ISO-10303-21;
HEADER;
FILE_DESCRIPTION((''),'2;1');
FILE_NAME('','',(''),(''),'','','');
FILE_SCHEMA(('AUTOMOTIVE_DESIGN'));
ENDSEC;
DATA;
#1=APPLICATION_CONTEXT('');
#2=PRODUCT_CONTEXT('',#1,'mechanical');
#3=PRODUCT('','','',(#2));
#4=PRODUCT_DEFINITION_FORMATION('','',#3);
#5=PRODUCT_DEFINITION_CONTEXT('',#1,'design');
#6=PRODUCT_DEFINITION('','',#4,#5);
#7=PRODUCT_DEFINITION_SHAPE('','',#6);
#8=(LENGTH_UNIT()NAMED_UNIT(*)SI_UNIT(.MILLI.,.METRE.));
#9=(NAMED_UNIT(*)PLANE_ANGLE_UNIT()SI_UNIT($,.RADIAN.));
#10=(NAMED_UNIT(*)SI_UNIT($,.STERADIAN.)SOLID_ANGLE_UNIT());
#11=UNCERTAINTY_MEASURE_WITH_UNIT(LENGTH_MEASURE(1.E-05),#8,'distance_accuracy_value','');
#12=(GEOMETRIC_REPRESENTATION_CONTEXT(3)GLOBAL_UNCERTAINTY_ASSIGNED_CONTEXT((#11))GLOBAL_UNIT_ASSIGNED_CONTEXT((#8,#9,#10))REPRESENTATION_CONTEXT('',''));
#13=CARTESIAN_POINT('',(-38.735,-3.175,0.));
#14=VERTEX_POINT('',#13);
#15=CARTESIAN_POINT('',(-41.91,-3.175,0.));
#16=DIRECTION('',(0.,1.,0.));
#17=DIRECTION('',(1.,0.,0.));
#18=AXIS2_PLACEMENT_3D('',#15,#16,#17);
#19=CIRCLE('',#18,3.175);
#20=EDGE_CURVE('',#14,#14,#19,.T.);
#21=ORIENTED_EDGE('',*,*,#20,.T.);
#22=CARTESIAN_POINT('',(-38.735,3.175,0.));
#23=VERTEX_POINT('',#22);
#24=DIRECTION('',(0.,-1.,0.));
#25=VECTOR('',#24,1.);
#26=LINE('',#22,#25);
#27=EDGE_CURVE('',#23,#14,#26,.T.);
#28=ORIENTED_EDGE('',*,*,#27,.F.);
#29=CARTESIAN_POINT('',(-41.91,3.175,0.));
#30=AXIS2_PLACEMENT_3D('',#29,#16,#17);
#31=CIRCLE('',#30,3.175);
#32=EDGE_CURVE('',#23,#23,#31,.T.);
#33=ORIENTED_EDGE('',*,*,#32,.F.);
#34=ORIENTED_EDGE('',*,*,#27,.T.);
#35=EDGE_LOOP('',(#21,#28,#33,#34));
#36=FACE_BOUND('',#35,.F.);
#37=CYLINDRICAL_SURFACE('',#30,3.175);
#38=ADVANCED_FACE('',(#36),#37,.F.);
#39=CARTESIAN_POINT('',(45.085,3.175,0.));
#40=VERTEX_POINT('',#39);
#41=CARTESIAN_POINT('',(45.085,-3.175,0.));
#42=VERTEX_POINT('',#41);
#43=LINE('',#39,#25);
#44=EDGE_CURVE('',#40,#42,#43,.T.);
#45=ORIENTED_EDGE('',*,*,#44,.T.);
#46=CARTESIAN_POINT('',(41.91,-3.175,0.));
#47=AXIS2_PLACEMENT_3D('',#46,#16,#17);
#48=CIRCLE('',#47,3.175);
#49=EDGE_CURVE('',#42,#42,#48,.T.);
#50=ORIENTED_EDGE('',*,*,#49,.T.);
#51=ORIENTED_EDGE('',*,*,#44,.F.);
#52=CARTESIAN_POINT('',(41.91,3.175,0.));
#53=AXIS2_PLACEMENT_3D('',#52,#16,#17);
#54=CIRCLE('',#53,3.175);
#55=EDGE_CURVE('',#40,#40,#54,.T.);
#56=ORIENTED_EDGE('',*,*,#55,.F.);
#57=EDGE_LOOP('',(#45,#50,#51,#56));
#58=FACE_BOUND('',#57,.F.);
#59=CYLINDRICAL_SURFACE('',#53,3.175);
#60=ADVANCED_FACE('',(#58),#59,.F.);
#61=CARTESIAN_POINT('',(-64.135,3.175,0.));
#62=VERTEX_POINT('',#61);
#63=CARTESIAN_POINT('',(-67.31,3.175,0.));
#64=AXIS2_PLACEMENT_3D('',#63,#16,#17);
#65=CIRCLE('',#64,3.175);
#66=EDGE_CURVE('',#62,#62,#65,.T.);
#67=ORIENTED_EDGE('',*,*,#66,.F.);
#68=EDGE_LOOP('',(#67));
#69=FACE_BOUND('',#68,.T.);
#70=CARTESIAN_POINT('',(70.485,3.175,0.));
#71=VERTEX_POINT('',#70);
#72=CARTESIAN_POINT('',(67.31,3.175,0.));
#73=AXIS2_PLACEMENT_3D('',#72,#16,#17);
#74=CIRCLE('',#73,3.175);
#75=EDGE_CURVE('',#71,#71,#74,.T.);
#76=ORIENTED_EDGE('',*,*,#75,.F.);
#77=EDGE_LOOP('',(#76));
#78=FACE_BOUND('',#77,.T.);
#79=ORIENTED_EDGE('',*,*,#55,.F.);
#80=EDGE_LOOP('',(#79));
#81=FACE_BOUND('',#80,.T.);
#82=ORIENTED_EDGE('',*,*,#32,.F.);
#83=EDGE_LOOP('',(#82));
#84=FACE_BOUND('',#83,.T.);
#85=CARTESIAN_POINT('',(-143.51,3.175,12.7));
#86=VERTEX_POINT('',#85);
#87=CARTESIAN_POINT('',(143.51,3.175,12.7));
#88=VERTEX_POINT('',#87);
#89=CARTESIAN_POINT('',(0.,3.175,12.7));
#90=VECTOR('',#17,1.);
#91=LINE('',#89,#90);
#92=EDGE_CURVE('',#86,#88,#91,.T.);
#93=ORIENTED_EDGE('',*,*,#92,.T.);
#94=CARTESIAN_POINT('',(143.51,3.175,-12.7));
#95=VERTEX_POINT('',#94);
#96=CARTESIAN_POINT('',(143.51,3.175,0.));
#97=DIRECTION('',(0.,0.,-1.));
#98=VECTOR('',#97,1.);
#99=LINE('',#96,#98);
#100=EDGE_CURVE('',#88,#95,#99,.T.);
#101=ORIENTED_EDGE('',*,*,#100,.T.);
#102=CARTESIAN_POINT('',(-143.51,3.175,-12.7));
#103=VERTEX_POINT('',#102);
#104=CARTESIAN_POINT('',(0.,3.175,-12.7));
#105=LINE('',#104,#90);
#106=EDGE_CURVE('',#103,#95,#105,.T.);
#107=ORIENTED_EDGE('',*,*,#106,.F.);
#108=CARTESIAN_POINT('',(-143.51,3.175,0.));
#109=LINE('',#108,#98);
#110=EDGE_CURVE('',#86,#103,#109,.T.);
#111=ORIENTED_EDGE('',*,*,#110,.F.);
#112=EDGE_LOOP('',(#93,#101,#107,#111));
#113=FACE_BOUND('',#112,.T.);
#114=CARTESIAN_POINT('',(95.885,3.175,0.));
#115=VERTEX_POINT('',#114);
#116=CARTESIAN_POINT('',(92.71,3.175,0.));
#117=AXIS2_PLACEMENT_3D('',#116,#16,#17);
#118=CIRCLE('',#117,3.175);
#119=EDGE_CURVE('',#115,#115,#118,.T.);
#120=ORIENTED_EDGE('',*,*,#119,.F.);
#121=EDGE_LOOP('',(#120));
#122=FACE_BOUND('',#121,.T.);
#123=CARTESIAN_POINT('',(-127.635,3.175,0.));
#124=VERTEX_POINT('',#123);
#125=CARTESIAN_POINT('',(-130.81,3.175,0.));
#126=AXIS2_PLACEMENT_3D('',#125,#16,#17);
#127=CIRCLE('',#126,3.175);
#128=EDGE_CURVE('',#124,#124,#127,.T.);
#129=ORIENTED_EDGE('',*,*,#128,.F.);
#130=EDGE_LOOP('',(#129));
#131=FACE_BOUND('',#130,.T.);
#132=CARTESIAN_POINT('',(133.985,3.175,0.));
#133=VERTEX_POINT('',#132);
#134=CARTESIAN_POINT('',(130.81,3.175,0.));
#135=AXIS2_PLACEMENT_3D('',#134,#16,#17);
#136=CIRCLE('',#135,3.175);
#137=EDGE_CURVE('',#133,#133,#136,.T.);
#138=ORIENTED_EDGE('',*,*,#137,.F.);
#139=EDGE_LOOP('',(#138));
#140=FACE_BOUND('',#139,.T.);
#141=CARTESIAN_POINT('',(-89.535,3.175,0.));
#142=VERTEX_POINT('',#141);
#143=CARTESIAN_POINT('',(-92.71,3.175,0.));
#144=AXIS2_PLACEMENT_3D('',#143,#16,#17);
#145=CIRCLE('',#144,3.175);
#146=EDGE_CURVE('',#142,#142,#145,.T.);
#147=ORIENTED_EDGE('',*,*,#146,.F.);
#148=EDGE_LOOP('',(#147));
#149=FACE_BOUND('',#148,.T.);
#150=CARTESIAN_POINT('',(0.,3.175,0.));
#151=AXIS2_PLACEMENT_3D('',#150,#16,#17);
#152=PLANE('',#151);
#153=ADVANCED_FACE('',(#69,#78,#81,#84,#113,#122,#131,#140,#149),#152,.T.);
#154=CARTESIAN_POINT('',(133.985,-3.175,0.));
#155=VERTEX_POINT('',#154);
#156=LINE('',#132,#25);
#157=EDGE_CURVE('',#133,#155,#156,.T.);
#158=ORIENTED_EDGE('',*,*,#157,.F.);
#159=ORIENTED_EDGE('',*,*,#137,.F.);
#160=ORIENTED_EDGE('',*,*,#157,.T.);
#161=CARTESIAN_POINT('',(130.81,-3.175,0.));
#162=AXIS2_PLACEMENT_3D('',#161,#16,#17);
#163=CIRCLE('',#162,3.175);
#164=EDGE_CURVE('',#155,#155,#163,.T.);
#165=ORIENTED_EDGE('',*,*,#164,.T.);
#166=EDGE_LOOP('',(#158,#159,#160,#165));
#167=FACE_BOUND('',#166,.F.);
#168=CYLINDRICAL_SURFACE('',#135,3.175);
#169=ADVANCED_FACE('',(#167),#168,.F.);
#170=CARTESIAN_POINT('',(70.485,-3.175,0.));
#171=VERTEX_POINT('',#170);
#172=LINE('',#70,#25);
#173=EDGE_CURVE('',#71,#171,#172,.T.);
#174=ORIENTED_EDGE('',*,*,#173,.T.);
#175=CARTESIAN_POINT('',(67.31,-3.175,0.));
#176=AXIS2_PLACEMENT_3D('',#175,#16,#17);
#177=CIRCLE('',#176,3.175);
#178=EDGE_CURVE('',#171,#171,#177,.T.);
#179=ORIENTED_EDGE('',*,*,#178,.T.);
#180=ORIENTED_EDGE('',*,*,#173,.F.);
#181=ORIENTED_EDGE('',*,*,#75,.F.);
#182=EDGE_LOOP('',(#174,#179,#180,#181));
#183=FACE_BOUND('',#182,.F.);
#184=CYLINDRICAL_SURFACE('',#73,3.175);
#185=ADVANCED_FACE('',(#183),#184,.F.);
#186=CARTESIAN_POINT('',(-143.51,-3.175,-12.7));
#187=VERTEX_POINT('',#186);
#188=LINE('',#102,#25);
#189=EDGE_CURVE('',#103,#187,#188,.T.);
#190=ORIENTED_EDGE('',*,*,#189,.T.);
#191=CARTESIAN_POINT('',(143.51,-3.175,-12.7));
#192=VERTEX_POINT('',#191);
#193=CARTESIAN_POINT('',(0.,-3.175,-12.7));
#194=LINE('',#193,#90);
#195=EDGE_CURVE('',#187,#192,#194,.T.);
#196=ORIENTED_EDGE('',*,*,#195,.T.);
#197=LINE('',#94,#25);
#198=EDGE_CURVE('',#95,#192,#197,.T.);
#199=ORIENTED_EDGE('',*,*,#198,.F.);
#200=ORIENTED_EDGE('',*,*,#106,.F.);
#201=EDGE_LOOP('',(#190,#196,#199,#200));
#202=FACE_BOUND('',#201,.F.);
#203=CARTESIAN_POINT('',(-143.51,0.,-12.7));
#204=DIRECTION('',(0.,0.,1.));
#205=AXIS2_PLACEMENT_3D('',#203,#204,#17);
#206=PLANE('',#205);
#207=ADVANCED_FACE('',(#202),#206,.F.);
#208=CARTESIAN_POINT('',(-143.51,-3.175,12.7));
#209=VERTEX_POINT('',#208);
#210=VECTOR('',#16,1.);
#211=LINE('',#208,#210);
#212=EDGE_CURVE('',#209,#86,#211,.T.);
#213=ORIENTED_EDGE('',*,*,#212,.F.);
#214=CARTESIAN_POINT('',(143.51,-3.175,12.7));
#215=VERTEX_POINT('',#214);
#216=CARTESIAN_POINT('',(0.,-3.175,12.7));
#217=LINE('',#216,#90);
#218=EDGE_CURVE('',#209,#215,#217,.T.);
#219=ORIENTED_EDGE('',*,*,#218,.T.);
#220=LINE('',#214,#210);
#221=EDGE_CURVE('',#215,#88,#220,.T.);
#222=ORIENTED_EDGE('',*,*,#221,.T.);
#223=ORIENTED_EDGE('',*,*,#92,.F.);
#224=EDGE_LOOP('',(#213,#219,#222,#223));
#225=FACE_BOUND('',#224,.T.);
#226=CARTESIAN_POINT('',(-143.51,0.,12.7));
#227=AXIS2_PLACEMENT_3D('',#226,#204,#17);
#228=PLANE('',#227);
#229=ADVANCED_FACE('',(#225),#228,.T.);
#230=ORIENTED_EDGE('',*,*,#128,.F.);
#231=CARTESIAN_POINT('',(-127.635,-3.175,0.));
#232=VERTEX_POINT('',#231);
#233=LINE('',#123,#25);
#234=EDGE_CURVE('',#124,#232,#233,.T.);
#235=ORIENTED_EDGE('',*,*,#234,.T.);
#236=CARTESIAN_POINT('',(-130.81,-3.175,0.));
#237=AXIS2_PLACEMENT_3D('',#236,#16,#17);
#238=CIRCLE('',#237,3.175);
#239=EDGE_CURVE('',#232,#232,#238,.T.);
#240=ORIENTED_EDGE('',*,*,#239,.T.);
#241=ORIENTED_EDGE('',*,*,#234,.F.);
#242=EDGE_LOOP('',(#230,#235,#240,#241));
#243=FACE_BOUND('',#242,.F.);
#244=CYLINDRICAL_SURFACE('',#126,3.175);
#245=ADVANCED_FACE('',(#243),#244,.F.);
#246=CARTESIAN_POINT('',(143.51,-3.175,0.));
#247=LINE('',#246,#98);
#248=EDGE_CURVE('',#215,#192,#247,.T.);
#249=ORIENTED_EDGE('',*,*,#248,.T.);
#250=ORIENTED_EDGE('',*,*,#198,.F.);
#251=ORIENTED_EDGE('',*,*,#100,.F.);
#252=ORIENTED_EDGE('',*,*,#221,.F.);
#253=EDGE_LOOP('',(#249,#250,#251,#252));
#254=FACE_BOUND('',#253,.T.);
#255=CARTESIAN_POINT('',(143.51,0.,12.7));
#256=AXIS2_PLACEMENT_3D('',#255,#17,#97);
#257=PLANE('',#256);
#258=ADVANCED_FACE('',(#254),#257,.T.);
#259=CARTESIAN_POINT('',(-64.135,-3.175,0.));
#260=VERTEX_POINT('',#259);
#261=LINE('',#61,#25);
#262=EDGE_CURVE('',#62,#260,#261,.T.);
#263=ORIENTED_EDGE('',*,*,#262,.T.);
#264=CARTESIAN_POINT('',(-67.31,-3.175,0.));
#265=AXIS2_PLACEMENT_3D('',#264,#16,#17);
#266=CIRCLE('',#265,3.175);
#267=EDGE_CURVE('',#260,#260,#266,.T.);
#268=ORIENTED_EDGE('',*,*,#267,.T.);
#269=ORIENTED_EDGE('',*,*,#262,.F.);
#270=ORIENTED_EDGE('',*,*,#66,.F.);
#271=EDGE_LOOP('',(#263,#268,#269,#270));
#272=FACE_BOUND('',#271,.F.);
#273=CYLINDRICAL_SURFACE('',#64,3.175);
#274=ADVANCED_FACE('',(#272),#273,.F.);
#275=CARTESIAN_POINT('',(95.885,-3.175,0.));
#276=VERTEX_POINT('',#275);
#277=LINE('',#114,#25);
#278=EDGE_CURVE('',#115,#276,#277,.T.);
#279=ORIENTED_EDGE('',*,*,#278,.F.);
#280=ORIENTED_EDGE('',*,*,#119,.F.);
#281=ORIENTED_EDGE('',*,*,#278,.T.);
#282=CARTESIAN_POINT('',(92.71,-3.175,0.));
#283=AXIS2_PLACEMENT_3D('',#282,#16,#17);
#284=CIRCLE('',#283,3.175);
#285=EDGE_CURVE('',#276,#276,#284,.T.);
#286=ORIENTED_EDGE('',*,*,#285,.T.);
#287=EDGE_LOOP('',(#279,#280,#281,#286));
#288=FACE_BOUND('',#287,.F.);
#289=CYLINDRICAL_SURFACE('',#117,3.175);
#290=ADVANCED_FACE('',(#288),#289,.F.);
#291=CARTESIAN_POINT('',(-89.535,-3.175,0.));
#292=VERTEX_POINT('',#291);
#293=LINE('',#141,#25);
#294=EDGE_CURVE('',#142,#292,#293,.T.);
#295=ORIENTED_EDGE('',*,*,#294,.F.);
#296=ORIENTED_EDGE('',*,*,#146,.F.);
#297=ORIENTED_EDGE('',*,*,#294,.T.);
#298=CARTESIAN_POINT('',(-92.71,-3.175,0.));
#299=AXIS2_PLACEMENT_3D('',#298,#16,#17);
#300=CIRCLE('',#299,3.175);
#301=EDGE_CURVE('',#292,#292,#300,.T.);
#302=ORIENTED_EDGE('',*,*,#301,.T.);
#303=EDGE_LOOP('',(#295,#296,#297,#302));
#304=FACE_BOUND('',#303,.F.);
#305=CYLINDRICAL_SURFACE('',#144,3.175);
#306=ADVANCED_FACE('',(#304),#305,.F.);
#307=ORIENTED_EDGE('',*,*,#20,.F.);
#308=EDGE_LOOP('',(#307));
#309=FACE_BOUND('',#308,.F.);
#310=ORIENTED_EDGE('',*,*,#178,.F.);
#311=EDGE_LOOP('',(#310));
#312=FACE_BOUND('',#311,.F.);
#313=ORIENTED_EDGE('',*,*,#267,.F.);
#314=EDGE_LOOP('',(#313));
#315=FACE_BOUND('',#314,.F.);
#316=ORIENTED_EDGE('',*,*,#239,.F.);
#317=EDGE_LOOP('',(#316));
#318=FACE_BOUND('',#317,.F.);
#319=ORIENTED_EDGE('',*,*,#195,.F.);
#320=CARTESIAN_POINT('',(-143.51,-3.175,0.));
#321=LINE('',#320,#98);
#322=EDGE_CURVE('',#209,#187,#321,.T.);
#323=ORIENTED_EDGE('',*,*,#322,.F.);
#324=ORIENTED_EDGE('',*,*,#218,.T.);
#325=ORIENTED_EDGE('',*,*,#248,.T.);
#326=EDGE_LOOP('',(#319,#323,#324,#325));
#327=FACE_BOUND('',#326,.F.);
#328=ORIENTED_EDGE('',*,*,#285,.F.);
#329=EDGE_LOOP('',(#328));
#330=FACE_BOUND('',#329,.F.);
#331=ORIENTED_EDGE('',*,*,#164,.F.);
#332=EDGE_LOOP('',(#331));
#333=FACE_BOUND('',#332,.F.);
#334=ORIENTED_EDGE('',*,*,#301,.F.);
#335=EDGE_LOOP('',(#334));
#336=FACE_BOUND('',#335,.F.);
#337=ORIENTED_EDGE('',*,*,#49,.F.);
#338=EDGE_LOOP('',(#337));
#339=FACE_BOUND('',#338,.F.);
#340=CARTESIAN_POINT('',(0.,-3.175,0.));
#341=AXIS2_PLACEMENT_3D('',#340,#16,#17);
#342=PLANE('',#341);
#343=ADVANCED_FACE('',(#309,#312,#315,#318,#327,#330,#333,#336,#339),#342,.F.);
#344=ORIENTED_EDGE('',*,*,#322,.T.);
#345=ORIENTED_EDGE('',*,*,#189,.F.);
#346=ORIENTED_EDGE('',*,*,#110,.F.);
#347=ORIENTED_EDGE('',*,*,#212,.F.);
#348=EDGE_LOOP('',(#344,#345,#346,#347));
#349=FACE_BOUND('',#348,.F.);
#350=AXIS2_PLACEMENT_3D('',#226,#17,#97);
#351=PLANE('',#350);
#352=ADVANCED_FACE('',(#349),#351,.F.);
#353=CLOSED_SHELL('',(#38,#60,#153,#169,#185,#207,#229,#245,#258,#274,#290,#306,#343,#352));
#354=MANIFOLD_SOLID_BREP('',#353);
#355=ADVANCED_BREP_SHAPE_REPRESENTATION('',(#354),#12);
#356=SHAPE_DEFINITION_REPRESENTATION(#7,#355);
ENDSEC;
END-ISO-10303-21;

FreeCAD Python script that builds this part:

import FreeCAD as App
import Part
import Sketcher

V = App.Vector
Q = App.Units.Quantity


def add_polygon(sketch, points):
    """Adds a closed chain of lines whose ends are joined by coincident constraints."""
    first, n = sketch.GeometryCount, len(points)
    for a, b in zip(points, points[1:] + points[:1]):
        sketch.addGeometry(Part.LineSegment(App.Vector(*a, 0), App.Vector(*b, 0)), False)
    for i in range(n):
        sketch.addConstraint(Sketcher.Constraint("Coincident", first + i, 2, first + (i + 1) % n, 1))

doc = App.newDocument("Part")
body = doc.addObject("PartDesign::Body", "Body")

# Sketch on XZ plane
sketch1 = doc.addObject("Sketcher::SketchObject", "Sketch")
body.addObject(sketch1)
sketch1.AttachmentSupport = (doc.XZ_Plane, [""])
sketch1.MapMode = "FlatFace"
add_polygon(sketch1, [(-143.51, -12.7), (-143.51, 12.7), (143.51, 12.7), (143.51, -12.7)])  # lines 0-3
sketch1.addConstraint([
    Sketcher.Constraint("Vertical", 0),
    Sketcher.Constraint("Horizontal", 1),
    Sketcher.Constraint("Vertical", 2),
    Sketcher.Constraint("Horizontal", 3),
    Sketcher.Constraint("Symmetric", 0, 2, 2, 2, -1, 1),
    Sketcher.Constraint("DistanceY", 0, 1, 0, 2, Q("1 in")),
    Sketcher.Constraint("DistanceX", 1, 1, 1, 2, Q("11.3 in")),
])
pad1 = doc.addObject("PartDesign::Pad", "Pad")
body.addObject(pad1)
pad1.Profile = sketch1
pad1.Length = Q("0.25 in")
pad1.Midplane = True

# Sketch on XZ plane
sketch2 = doc.addObject("Sketcher::SketchObject", "Sketch001")
body.addObject(sketch2)
sketch2.AttachmentSupport = (doc.XZ_Plane, [""])
sketch2.MapMode = "FlatFace"
sketch2.AttachmentOffset = App.Placement(V(0, 0, -0.125 * 25.4), App.Rotation())
sketch2.addGeometry([
    Part.Circle(V(-130.81, 0, 0), V(0, 0, 1), 3.175),  # 0
    Part.Circle(V(-41.91, 0, 0), V(0, 0, 1), 3.175),  # 1
    Part.Circle(V(130.81, 0, 0), V(0, 0, 1), 3.175),  # 2
    Part.Circle(V(41.91, 0, 0), V(0, 0, 1), 3.175),  # 3
    Part.Circle(V(-92.71, 0, 0), V(0, 0, 1), 3.175),  # 4
    Part.Circle(V(-67.31, 0, 0), V(0, 0, 1), 3.175),  # 5
    Part.Circle(V(67.31, 0, 0), V(0, 0, 1), 3.175),  # 6
    Part.Circle(V(92.71, 0, 0), V(0, 0, 1), 3.175),  # 7
], False)
sketch2.addConstraint([
    Sketcher.Constraint("Equal", 0, 1),
    Sketcher.Constraint("Equal", 1, 2),
    Sketcher.Constraint("Equal", 2, 3),
    Sketcher.Constraint("Equal", 3, 4),
    Sketcher.Constraint("Equal", 4, 5),
    Sketcher.Constraint("Equal", 5, 6),
    Sketcher.Constraint("Equal", 6, 7),
    Sketcher.Constraint("Symmetric", 0, 3, 2, 3, -1, 1),
    Sketcher.Constraint("Symmetric", 1, 3, 3, 3, -1, 1),
    Sketcher.Constraint("Symmetric", 5, 3, 6, 3, -1, 1),
    Sketcher.Constraint("Symmetric", 4, 3, 7, 3, -1, 1),
    Sketcher.Constraint("PointOnObject", 0, 3, -1),
    Sketcher.Constraint("PointOnObject", 1, 3, -1),
    Sketcher.Constraint("PointOnObject", 4, 3, -1),
    Sketcher.Constraint("PointOnObject", 5, 3, -1),
    Sketcher.Constraint("Diameter", 0, Q("0.25 in")),
    Sketcher.Constraint("DistanceX", 4, 3, 1, 3, Q("2 in")),
    Sketcher.Constraint("DistanceX", 4, 3, 5, 3, Q("1 in")),
    Sketcher.Constraint("DistanceX", 0, 3, 1, 3, Q("3.5 in")),
    Sketcher.Constraint("DistanceX", 1, 3, 2, 3, Q("6.8 in")),
])
pocket1 = doc.addObject("PartDesign::Pocket", "Pocket")
body.addObject(pocket1)
pocket1.Profile = sketch2
pocket1.Type = "ThroughAll"
pocket1.Midplane = True

doc.recompute()
